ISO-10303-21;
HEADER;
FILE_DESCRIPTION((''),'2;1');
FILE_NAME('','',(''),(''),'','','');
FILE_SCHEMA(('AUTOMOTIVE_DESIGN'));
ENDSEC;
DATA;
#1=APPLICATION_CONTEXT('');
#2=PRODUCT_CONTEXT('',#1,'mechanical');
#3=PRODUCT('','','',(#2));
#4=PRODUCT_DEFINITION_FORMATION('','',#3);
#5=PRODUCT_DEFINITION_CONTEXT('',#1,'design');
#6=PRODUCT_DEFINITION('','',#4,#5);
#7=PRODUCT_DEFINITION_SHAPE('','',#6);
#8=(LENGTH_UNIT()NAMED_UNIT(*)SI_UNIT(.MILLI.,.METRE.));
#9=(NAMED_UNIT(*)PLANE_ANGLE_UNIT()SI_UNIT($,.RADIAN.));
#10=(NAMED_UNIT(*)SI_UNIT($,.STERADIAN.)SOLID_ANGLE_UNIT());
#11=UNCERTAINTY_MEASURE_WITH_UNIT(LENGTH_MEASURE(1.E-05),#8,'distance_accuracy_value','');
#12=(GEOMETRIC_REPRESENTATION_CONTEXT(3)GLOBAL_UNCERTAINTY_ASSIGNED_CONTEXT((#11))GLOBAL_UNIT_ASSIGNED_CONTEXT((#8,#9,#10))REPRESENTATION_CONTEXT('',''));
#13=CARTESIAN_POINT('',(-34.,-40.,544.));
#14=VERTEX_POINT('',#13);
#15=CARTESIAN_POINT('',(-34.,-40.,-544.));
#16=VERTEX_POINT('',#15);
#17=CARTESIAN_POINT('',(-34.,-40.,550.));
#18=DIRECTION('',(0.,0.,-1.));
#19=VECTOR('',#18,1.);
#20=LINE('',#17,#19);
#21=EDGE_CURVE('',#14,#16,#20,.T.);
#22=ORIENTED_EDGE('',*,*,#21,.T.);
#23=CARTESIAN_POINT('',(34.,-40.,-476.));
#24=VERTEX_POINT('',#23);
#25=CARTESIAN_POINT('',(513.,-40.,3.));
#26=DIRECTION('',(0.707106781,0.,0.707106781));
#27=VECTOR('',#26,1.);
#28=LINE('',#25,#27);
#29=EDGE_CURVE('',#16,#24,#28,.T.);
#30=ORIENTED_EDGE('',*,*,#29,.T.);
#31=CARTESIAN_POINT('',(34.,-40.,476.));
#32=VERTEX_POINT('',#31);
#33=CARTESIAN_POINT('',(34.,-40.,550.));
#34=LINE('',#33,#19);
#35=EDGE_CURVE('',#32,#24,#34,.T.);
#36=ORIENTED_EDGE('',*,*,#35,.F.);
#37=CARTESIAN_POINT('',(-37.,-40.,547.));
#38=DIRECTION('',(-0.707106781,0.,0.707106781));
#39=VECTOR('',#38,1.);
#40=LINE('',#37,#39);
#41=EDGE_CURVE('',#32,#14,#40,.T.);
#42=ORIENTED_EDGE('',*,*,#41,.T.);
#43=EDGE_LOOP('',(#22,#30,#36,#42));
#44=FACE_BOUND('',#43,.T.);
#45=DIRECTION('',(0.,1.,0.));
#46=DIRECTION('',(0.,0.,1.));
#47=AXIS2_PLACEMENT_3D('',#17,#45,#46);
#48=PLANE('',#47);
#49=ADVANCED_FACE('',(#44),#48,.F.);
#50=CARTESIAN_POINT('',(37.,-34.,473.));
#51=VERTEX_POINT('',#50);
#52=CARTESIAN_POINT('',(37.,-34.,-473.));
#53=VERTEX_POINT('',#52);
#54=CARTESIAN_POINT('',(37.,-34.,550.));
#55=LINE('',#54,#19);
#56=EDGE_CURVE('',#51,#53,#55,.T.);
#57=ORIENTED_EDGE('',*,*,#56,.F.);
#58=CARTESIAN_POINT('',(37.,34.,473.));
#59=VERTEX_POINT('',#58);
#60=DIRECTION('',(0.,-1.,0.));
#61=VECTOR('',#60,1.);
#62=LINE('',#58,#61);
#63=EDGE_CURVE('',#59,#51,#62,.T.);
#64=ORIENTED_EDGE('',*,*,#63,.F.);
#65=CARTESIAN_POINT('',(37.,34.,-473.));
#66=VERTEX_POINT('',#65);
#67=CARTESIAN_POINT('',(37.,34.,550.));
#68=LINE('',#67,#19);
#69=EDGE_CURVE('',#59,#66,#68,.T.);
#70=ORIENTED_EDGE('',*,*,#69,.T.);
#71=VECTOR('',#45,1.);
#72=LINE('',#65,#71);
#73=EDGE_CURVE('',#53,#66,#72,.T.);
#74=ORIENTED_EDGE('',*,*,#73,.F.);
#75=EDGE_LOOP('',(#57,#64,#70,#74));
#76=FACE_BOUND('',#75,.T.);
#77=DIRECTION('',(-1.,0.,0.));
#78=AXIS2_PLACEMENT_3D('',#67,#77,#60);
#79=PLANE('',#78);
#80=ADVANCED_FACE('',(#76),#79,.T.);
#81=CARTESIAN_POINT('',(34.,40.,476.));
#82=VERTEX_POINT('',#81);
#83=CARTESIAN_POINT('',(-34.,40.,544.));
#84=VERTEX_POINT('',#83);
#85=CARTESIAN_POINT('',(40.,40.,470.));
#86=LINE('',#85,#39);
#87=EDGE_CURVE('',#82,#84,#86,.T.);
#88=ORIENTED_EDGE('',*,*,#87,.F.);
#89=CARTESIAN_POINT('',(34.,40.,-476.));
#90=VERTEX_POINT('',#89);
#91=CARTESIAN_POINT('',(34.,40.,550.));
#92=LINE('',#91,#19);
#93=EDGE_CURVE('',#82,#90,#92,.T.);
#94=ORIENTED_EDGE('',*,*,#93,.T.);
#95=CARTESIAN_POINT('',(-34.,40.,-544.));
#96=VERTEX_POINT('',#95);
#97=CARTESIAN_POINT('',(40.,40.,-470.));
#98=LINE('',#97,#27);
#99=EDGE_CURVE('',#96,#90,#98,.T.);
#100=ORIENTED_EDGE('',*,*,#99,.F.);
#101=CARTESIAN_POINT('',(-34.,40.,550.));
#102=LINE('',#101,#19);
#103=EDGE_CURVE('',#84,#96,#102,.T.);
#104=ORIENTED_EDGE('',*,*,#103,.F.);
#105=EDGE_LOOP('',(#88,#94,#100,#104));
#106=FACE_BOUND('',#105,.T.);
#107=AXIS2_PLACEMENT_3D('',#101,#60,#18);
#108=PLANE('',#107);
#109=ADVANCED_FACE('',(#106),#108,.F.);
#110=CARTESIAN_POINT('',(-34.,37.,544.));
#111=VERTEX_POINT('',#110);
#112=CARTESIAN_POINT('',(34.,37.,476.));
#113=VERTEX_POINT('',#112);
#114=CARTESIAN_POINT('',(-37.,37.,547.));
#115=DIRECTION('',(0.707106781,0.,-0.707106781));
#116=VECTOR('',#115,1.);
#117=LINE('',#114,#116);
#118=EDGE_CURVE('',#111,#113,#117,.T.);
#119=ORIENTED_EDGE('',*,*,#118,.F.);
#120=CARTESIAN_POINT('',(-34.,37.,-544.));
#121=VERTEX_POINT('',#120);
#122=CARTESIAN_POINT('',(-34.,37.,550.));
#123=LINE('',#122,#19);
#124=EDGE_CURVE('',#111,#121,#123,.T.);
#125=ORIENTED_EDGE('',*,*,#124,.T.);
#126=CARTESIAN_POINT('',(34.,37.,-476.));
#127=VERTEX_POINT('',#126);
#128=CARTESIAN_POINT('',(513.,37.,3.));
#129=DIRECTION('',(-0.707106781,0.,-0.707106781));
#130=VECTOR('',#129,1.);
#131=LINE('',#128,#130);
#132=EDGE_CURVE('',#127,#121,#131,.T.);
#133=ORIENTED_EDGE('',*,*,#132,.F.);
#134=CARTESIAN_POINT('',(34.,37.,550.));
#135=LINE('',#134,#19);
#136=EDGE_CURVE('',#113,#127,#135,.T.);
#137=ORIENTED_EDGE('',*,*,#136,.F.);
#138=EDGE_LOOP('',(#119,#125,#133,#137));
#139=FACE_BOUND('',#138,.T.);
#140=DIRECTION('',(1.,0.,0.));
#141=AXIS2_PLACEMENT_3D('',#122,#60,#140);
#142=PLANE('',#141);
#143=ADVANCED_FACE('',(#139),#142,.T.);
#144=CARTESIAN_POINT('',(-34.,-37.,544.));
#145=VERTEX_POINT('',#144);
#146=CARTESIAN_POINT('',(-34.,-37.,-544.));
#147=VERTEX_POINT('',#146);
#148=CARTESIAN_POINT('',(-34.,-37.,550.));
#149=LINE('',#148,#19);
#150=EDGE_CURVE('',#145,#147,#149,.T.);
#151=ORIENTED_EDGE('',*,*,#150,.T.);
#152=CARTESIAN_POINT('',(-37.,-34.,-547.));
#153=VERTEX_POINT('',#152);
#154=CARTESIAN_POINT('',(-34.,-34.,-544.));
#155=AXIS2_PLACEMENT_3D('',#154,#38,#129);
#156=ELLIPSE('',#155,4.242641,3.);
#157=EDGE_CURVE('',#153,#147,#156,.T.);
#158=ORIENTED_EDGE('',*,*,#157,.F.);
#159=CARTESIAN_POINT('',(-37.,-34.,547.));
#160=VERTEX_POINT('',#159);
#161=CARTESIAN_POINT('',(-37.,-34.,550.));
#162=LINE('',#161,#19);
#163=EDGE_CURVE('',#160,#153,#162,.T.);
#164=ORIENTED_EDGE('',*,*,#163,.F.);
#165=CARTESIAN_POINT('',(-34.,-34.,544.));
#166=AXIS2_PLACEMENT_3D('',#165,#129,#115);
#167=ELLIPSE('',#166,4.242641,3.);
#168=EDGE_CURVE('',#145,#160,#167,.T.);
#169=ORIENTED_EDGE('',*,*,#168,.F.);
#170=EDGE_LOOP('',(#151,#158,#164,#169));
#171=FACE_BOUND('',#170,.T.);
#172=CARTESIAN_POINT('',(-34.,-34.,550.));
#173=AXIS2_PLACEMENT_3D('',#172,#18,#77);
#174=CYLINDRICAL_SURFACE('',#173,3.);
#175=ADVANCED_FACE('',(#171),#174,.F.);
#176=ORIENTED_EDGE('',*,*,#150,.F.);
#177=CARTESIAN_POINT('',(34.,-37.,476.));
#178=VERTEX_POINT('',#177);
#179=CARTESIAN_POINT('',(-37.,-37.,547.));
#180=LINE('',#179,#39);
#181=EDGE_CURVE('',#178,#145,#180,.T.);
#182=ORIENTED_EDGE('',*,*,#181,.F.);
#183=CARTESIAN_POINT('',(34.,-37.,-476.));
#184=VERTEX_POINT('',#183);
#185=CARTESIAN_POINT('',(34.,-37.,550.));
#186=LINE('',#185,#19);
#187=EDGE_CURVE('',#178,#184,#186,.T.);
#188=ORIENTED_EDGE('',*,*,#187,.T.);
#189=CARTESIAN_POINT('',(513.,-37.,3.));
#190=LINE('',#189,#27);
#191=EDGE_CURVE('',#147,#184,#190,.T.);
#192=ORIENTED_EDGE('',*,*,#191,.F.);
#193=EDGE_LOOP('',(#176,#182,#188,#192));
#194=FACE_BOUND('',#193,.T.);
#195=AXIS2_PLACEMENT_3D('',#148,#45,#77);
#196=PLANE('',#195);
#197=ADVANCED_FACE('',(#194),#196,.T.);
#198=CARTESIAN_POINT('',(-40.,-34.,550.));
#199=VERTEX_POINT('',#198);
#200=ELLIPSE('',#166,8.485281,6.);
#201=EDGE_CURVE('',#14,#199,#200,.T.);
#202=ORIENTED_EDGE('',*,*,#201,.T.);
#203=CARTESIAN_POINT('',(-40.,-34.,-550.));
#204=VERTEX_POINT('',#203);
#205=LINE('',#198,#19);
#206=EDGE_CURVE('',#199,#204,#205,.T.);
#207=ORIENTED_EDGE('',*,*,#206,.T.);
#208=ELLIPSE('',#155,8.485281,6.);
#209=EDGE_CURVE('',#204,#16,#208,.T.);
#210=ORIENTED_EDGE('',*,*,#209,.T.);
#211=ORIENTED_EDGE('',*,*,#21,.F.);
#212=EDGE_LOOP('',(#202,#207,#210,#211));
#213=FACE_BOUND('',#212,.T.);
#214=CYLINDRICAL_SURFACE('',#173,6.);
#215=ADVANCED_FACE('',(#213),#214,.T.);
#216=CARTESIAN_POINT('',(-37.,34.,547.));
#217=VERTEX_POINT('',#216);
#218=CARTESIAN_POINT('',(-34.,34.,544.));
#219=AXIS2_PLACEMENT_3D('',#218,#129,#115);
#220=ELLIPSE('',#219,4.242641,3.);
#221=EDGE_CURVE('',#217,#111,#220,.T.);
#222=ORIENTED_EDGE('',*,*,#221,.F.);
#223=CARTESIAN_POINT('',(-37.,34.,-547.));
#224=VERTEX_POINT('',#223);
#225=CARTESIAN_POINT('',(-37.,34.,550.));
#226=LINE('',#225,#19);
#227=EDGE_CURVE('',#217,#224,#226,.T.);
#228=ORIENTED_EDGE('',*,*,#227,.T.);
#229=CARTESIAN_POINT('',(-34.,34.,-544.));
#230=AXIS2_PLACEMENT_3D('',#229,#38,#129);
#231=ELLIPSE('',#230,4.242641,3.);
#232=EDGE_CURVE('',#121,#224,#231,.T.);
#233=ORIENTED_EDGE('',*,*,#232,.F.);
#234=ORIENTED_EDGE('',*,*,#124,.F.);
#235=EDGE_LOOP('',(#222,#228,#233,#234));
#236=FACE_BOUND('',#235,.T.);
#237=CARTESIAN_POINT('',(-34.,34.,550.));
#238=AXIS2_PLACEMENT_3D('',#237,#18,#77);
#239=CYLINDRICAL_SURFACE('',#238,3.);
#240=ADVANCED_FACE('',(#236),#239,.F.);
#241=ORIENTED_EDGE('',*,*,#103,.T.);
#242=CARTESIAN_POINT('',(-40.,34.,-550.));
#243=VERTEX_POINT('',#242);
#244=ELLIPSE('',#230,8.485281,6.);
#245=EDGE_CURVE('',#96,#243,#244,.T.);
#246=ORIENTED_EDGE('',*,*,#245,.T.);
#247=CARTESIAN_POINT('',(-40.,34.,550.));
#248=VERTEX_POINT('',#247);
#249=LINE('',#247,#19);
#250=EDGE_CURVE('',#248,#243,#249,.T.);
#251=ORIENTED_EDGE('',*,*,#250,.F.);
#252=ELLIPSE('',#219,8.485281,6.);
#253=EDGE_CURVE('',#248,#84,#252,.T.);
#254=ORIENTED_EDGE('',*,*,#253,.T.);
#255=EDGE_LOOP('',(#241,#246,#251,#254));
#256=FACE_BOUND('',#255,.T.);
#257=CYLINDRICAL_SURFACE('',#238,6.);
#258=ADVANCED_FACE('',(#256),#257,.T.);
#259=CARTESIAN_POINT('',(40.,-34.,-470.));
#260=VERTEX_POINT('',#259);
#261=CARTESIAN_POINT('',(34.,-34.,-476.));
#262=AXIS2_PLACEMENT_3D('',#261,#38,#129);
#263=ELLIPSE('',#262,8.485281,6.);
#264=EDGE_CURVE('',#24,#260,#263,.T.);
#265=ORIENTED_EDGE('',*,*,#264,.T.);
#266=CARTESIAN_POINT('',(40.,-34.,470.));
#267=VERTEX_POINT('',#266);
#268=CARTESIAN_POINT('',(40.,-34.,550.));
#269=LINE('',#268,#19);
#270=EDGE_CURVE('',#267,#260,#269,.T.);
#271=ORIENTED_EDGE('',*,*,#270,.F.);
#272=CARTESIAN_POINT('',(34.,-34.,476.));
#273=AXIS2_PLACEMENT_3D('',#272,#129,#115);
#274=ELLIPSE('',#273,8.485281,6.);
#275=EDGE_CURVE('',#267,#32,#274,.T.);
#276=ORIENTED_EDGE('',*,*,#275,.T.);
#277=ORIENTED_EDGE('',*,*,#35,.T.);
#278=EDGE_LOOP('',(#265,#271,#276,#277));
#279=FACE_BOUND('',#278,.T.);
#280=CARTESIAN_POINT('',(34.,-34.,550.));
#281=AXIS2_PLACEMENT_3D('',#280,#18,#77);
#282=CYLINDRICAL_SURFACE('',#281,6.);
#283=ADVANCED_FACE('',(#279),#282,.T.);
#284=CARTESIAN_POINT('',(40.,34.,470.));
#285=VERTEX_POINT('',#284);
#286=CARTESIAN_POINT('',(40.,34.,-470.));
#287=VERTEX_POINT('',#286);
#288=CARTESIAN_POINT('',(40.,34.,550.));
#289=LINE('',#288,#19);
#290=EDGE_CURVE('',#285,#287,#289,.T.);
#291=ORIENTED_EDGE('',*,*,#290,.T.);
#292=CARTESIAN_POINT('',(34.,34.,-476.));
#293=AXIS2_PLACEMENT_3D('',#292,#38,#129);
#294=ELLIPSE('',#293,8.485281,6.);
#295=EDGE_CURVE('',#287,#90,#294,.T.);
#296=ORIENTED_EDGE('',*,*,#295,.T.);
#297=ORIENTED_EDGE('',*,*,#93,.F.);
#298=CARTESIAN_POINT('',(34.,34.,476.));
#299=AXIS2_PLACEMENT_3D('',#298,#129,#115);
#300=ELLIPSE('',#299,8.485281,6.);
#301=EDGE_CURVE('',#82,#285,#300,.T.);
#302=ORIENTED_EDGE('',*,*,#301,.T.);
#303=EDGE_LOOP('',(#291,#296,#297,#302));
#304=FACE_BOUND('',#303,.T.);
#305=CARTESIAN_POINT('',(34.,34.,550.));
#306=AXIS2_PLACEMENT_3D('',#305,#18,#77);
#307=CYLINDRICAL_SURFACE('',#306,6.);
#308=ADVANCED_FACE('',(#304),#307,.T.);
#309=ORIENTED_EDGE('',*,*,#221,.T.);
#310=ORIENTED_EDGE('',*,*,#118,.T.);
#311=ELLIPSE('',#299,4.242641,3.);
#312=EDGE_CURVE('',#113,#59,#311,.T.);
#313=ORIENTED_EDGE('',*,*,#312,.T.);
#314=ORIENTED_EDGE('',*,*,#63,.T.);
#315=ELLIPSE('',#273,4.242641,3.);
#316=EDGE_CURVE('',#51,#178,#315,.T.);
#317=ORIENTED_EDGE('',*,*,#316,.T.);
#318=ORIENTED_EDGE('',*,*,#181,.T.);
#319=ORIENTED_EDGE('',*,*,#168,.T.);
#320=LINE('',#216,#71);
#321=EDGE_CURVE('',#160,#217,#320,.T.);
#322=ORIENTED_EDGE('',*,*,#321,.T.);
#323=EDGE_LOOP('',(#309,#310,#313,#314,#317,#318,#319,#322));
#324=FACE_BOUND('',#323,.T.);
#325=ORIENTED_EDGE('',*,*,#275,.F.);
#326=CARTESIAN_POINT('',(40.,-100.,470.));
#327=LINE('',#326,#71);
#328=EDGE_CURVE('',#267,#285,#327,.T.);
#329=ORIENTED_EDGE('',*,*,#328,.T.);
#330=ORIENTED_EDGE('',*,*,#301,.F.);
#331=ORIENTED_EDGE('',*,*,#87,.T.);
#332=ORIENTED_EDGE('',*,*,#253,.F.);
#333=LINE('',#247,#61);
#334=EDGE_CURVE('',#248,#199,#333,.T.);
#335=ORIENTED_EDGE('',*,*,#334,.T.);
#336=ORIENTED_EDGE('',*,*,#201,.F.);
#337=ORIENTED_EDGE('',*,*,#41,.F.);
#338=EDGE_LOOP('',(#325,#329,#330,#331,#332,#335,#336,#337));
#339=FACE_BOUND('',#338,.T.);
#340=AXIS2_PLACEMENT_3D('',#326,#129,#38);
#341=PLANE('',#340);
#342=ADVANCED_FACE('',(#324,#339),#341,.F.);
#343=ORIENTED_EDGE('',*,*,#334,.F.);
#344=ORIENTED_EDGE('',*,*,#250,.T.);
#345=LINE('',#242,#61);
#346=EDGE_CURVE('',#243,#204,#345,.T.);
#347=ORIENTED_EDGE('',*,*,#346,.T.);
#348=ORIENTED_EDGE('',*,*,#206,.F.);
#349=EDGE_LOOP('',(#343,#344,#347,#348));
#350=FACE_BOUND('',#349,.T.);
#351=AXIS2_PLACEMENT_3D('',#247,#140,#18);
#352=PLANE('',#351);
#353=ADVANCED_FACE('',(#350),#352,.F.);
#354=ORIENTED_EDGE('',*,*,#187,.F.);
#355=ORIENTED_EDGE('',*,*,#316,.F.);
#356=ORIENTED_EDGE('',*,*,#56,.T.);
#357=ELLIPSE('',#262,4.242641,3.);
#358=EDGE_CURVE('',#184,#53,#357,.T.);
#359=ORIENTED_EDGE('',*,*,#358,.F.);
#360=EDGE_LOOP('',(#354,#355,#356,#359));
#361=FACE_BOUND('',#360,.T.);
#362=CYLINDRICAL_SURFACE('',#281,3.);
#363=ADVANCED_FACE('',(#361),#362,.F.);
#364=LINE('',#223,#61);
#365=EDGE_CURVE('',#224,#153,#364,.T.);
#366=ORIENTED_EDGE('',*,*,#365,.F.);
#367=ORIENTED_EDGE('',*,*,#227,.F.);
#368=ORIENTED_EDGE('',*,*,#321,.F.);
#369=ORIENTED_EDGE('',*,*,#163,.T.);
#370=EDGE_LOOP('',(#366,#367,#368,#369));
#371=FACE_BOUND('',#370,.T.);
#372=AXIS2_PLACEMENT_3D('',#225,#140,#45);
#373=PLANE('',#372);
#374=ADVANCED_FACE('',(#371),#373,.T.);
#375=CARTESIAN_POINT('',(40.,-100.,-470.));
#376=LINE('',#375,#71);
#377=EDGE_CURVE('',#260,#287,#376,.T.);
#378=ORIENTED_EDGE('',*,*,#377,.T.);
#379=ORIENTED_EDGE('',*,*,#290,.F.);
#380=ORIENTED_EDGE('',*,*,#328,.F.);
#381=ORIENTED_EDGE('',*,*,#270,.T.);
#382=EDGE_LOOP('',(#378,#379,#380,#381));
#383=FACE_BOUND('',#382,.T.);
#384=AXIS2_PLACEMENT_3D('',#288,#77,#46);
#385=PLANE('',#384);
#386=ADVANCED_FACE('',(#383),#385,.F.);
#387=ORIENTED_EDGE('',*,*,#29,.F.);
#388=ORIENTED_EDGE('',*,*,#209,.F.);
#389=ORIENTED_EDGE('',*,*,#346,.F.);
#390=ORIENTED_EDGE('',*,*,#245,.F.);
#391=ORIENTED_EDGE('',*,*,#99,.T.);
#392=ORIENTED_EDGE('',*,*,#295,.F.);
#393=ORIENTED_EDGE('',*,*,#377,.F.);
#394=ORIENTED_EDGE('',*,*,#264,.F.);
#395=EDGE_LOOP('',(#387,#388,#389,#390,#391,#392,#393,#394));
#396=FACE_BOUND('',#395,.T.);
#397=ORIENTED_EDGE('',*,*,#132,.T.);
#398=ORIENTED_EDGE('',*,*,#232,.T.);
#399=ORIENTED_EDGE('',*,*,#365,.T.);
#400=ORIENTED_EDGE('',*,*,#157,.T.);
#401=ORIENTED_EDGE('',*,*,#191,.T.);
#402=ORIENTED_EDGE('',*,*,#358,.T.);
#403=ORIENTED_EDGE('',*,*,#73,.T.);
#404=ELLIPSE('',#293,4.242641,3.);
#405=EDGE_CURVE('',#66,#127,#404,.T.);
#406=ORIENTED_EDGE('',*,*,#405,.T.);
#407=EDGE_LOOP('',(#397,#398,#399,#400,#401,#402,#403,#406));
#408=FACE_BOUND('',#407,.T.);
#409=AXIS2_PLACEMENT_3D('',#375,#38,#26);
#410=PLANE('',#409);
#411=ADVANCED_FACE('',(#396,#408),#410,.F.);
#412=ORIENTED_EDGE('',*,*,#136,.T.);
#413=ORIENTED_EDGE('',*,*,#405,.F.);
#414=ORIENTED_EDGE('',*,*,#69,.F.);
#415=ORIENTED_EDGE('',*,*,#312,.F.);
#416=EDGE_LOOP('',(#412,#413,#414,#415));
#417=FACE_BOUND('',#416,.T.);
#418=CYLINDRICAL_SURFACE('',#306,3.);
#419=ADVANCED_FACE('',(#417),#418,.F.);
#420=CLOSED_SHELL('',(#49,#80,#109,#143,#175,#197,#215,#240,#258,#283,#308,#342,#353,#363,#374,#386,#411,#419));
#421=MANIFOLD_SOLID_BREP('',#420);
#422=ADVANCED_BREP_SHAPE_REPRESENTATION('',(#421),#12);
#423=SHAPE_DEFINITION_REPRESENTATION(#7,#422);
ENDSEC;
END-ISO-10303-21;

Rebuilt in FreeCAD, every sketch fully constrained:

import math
import FreeCAD as App
import Part
import Sketcher

V = App.Vector

doc = App.newDocument("Part")
body = doc.addObject("PartDesign::Body", "Body")

# Sketch on XY plane
sketch1 = body.newObject("Sketcher::SketchObject", "Sketch")
sketch1.AttachmentSupport = (doc.getObject("XY_Plane"), [""])
sketch1.MapMode = "FlatFace"
sketch1.addGeometry([
    Part.LineSegment(V(34, 40, 0), V(-34, 40, 0)),  # 0
    Part.ArcOfCircle(Part.Circle(V(-34, 34, 0), V(0, 0, 1), 6), math.radians(90), math.radians(180)),  # 1
    Part.LineSegment(V(-40, 34, 0), V(-40, -34, 0)),  # 2
    Part.ArcOfCircle(Part.Circle(V(-34, -34, 0), V(0, 0, 1), 6), math.radians(180), math.radians(270)),  # 3
    Part.LineSegment(V(-34, -40, 0), V(34, -40, 0)),  # 4
    Part.ArcOfCircle(Part.Circle(V(34, -34, 0), V(0, 0, 1), 6), math.radians(-90), math.radians(0)),  # 5
    Part.LineSegment(V(40, -34, 0), V(40, 34, 0)),  # 6
    Part.ArcOfCircle(Part.Circle(V(34, 34, 0), V(0, 0, 1), 6), math.radians(0), math.radians(90)),  # 7
    Part.ArcOfCircle(Part.Circle(V(-34, 34, 0), V(0, 0, 1), 3), math.radians(90), math.radians(180)),  # 8
    Part.LineSegment(V(-34, 37, 0), V(34, 37, 0)),  # 9
    Part.ArcOfCircle(Part.Circle(V(34, 34, 0), V(0, 0, 1), 3), math.radians(0), math.radians(90)),  # 10
    Part.LineSegment(V(37, 34, 0), V(37, -34, 0)),  # 11
    Part.ArcOfCircle(Part.Circle(V(34, -34, 0), V(0, 0, 1), 3), math.radians(-90), math.radians(0)),  # 12
    Part.LineSegment(V(34, -37, 0), V(-34, -37, 0)),  # 13
    Part.ArcOfCircle(Part.Circle(V(-34, -34, 0), V(0, 0, 1), 3), math.radians(180), math.radians(270)),  # 14
    Part.LineSegment(V(-37, -34, 0), V(-37, 34, 0)),  # 15
], False)
sketch1.addConstraint([
    Sketcher.Constraint("Tangent", 0, 2, 1, 1),
    Sketcher.Constraint("Tangent", 1, 2, 2, 1),
    Sketcher.Constraint("Tangent", 2, 2, 3, 1),
    Sketcher.Constraint("Tangent", 3, 2, 4, 1),
    Sketcher.Constraint("Tangent", 4, 2, 5, 1),
    Sketcher.Constraint("Tangent", 5, 2, 6, 1),
    Sketcher.Constraint("Tangent", 6, 2, 7, 1),
    Sketcher.Constraint("Tangent", 7, 2, 0, 1),
    Sketcher.Constraint("Tangent", 8, 1, 9, 1),
    Sketcher.Constraint("Tangent", 9, 2, 10, 2),
    Sketcher.Constraint("Tangent", 10, 1, 11, 1),
    Sketcher.Constraint("Tangent", 11, 2, 12, 2),
    Sketcher.Constraint("Tangent", 12, 1, 13, 1),
    Sketcher.Constraint("Tangent", 13, 2, 14, 2),
    Sketcher.Constraint("Tangent", 14, 1, 15, 1),
    Sketcher.Constraint("Tangent", 15, 2, 8, 2),
    Sketcher.Constraint("Horizontal", 0),
    Sketcher.Constraint("Vertical", 2),
    Sketcher.Constraint("Horizontal", 4),
    Sketcher.Constraint("Vertical", 6),
    Sketcher.Constraint("Horizontal", 9),
    Sketcher.Constraint("Vertical", 11),
    Sketcher.Constraint("Horizontal", 13),
    Sketcher.Constraint("Vertical", 15),
    Sketcher.Constraint("Coincident", 8, 3, 1, 3),
    Sketcher.Constraint("Coincident", 10, 3, 7, 3),
    Sketcher.Constraint("Coincident", 12, 3, 5, 3),
    Sketcher.Constraint("Equal", 1, 3),
    Sketcher.Constraint("Equal", 3, 5),
    Sketcher.Constraint("Equal", 5, 7),
    Sketcher.Constraint("Equal", 12, 14),
    Sketcher.Constraint("Symmetric", 1, 3, 5, 3, -1, 1),
    Sketcher.Constraint("Equal", 13, 2),
    Sketcher.Constraint("Radius", 1, 6.0),
    Sketcher.Constraint("Radius", 8, 3.0),
    Sketcher.Constraint("DistanceX", 0, 2, 0, 1, 68.0),
])
pad1 = body.newObject("PartDesign::Pad", "Pad")
pad1.Profile = sketch1
pad1.Length = 1100
pad1.Midplane = True

# Sketch on XZ plane
sketch2 = body.newObject("Sketcher::SketchObject", "Sketch001")
sketch2.AttachmentSupport = (doc.getObject("XZ_Plane"), [""])
sketch2.MapMode = "FlatFace"
sketch2.AttachmentOffset = App.Placement(V(0, 0, -40), App.Rotation())
sketch2.addGeometry([
    Part.LineSegment(V(40, -550, 0), V(-40, -550, 0)),  # 0
    Part.LineSegment(V(-40, -550, 0), V(40, -470, 0)),  # 1
    Part.LineSegment(V(40, -470, 0), V(40, -550, 0)),  # 2
    Part.LineSegment(V(40, 470, 0), V(-40, 550, 0)),  # 3
    Part.LineSegment(V(-40, 550, 0), V(40, 550, 0)),  # 4
    Part.LineSegment(V(40, 550, 0), V(40, 470, 0)),  # 5
], False)
sketch2.addConstraint([
    Sketcher.Constraint("Coincident", 0, 2, 1, 1),
    Sketcher.Constraint("Coincident", 1, 2, 2, 1),
    Sketcher.Constraint("Coincident", 2, 2, 0, 1),
    Sketcher.Constraint("Coincident", 3, 2, 4, 1),
    Sketcher.Constraint("Coincident", 4, 2, 5, 1),
    Sketcher.Constraint("Coincident", 5, 2, 3, 1),
    Sketcher.Constraint("Horizontal", 0),
    Sketcher.Constraint("Vertical", 2),
    Sketcher.Constraint("Horizontal", 4),
    Sketcher.Constraint("Vertical", 5),
    Sketcher.Constraint("Symmetric", 2, 2, 3, 2, -1, 1),
    Sketcher.Constraint("Symmetric", 1, 2, 5, 2, -1),
    Sketcher.Constraint("Perpendicular", 1, 3),
    Sketcher.Constraint("Vertical", 0, 2, 3, 2),
    Sketcher.Constraint("DistanceX", 0, 2, 0, 1, 80.0),
    Sketcher.Constraint("DistanceY", 0, 2, -1, 1, 550.0),
])
pocket1 = body.newObject("PartDesign::Pocket", "Pocket")
pocket1.Profile = sketch2
pocket1.Length = 140
pocket1.Reversed = True

doc.recompute()
